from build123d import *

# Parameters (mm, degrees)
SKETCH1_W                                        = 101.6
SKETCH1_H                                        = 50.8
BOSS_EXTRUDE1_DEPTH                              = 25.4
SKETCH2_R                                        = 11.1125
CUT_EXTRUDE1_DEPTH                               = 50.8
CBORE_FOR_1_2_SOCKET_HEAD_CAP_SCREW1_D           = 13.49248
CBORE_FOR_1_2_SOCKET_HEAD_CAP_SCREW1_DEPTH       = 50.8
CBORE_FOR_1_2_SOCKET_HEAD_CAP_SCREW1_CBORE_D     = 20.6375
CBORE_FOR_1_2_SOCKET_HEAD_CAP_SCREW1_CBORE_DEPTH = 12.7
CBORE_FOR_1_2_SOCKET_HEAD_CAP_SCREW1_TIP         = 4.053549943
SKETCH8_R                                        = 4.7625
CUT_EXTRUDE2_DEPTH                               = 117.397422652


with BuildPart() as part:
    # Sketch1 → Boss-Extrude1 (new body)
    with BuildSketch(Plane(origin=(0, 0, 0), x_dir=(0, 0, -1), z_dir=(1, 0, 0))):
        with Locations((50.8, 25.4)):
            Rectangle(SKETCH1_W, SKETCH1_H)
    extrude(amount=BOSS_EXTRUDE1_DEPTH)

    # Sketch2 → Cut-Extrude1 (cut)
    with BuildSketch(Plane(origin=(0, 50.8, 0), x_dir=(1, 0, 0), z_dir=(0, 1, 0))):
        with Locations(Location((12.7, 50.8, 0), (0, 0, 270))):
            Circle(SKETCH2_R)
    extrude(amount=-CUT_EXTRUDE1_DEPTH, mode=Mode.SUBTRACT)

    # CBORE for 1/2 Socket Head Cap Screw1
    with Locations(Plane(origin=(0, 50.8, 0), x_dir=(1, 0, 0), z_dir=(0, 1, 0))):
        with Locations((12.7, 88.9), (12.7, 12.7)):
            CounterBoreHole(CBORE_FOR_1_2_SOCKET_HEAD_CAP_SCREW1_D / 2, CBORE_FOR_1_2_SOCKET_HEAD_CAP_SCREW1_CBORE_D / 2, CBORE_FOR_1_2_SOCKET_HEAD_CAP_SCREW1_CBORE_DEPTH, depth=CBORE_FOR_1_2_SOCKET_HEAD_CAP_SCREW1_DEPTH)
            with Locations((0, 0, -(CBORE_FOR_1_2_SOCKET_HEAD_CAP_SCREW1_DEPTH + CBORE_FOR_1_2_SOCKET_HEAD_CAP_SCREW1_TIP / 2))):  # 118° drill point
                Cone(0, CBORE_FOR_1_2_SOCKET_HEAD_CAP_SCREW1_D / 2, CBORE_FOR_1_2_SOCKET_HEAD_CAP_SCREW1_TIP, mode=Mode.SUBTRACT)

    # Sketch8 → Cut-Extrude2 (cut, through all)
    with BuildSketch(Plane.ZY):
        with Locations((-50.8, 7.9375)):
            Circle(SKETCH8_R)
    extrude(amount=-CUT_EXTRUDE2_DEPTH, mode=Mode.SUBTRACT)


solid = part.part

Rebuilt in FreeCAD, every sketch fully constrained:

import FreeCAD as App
import Part
import Sketcher

V = App.Vector
Q = App.Units.Quantity


def add_polygon(sketch, points):
    """Adds a closed chain of lines whose ends are joined by coincident constraints."""
    first, n = sketch.GeometryCount, len(points)
    for a, b in zip(points, points[1:] + points[:1]):
        sketch.addGeometry(Part.LineSegment(App.Vector(*a, 0), App.Vector(*b, 0)), False)
    for i in range(n):
        sketch.addConstraint(Sketcher.Constraint("Coincident", first + i, 2, first + (i + 1) % n, 1))

doc = App.newDocument("Part")
body = doc.addObject("PartDesign::Body", "Body")

sketch1 = body.newObject("Sketcher::SketchObject", "Sketch")
sketch1.AttachmentSupport = (doc.getObject("YZ_Plane"), [""])
sketch1.MapMode = "FlatFace"
add_polygon(sketch1, [(51, 0), (0, 0), (0, -102), (51, -102)])
sketch1.addConstraint(Sketcher.Constraint("Horizontal", 0))
sketch1.addConstraint(Sketcher.Constraint("Vertical", 1))
sketch1.addConstraint(Sketcher.Constraint("Horizontal", 2))
sketch1.addConstraint(Sketcher.Constraint("Vertical", 3))
sketch1.addConstraint(Sketcher.Constraint("Coincident", 0, 2, -1, 1))
sketch1.addConstraint(Sketcher.Constraint("DistanceX", 0, 2, 0, 1, Q("2 in")))
sketch1.addConstraint(Sketcher.Constraint("DistanceY", 1, 2, 1, 1, Q("4 in")))
pad1 = body.newObject("PartDesign::Pad", "Pad")
pad1.Profile = sketch1
pad1.Length = Q("1 in")

sketch2 = body.newObject("Sketcher::SketchObject", "Sketch001")
sketch2.AttachmentSupport = (doc.getObject("XZ_Plane"), [""])
sketch2.MapMode = "FlatFace"
sketch2.AttachmentOffset = App.Placement(V(0, 0, -2 * 25.4), App.Rotation())
sketch2.addGeometry(Part.Circle(V(13, -51, 0), V(0, 0, 1), 11), False)
sketch2.addConstraint(Sketcher.Constraint("Diameter", 0, Q("0.875 in")))
sketch2.addConstraint(Sketcher.Constraint("DistanceY", 0, 3, -1, 1, Q("2 in")))
sketch2.addConstraint(Sketcher.Constraint("DistanceX", -1, 1, 0, 3, Q("0.5 in")))
pocket1 = body.newObject("PartDesign::Pocket", "Pocket")
pocket1.Profile = sketch2
pocket1.Length = Q("2 in")
pocket1.Reversed = True

sketch3 = body.newObject("Sketcher::SketchObject", "Sketch002")
sketch3.AttachmentSupport = (doc.getObject("XZ_Plane"), [""])
sketch3.MapMode = "FlatFace"
sketch3.AttachmentOffset = App.Placement(V(0, 0, -2 * 25.4), App.Rotation())
sketch3.addGeometry(Part.Circle(V(13, -89, 0), V(0, 0, 1), 7), False)
sketch3.addGeometry(Part.Circle(V(13, -13, 0), V(0, 0, 1), 7), False)
sketch3.addConstraint(Sketcher.Constraint("Equal", 0, 1))
sketch3.addConstraint(Sketcher.Constraint("Vertical", 0, 3, 1, 3))
sketch3.addConstraint(Sketcher.Constraint("DistanceY", 0, 3, 1, 3, Q("3 in")))
sketch3.addConstraint(Sketcher.Constraint("Diameter", 0, Q("0.5312 in")))
sketch3.addConstraint(Sketcher.Constraint("DistanceX", -1, 1, 0, 3, Q("0.5 in")))
sketch3.addConstraint(Sketcher.Constraint("DistanceY", 0, 3, -1, 1, Q("3.5 in")))
doc.recompute()
hole = body.newObject("PartDesign::Hole", "Hole")
hole.Profile = sketch3
hole.ThreadType = "None"
hole.Diameter = Q("0.5312 in")
hole.DepthType = "Dimension"
hole.Depth = Q("2 in")
hole.DrillPoint = "Angled"
hole.DrillPointAngle = 118
hole.HoleCutType = "Counterbore"
hole.HoleCutDiameter = Q("0.8125 in")
hole.HoleCutDepth = Q("0.5 in")
hole.Reversed = True

sketch4 = body.newObject("Sketcher::SketchObject", "Sketch003")
sketch4.AttachmentSupport = (doc.getObject("YZ_Plane"), [""])
sketch4.MapMode = "FlatFace"
sketch4.addGeometry(Part.Circle(V(7.9, -50.8, 0), V(0, 0, 1), 4.8), False)
sketch4.addConstraint(Sketcher.Constraint("Diameter", 0, Q("0.375 in")))
sketch4.addConstraint(Sketcher.Constraint("DistanceY", 0, 3, -1, 1, Q("2 in")))
sketch4.addConstraint(Sketcher.Constraint("DistanceX", -1, 1, 0, 3, Q("0.3125 in")))
pocket2 = body.newObject("PartDesign::Pocket", "Pocket001")
pocket2.Profile = sketch4
pocket2.Type = "ThroughAll"
pocket2.Reversed = True

doc.recompute()
